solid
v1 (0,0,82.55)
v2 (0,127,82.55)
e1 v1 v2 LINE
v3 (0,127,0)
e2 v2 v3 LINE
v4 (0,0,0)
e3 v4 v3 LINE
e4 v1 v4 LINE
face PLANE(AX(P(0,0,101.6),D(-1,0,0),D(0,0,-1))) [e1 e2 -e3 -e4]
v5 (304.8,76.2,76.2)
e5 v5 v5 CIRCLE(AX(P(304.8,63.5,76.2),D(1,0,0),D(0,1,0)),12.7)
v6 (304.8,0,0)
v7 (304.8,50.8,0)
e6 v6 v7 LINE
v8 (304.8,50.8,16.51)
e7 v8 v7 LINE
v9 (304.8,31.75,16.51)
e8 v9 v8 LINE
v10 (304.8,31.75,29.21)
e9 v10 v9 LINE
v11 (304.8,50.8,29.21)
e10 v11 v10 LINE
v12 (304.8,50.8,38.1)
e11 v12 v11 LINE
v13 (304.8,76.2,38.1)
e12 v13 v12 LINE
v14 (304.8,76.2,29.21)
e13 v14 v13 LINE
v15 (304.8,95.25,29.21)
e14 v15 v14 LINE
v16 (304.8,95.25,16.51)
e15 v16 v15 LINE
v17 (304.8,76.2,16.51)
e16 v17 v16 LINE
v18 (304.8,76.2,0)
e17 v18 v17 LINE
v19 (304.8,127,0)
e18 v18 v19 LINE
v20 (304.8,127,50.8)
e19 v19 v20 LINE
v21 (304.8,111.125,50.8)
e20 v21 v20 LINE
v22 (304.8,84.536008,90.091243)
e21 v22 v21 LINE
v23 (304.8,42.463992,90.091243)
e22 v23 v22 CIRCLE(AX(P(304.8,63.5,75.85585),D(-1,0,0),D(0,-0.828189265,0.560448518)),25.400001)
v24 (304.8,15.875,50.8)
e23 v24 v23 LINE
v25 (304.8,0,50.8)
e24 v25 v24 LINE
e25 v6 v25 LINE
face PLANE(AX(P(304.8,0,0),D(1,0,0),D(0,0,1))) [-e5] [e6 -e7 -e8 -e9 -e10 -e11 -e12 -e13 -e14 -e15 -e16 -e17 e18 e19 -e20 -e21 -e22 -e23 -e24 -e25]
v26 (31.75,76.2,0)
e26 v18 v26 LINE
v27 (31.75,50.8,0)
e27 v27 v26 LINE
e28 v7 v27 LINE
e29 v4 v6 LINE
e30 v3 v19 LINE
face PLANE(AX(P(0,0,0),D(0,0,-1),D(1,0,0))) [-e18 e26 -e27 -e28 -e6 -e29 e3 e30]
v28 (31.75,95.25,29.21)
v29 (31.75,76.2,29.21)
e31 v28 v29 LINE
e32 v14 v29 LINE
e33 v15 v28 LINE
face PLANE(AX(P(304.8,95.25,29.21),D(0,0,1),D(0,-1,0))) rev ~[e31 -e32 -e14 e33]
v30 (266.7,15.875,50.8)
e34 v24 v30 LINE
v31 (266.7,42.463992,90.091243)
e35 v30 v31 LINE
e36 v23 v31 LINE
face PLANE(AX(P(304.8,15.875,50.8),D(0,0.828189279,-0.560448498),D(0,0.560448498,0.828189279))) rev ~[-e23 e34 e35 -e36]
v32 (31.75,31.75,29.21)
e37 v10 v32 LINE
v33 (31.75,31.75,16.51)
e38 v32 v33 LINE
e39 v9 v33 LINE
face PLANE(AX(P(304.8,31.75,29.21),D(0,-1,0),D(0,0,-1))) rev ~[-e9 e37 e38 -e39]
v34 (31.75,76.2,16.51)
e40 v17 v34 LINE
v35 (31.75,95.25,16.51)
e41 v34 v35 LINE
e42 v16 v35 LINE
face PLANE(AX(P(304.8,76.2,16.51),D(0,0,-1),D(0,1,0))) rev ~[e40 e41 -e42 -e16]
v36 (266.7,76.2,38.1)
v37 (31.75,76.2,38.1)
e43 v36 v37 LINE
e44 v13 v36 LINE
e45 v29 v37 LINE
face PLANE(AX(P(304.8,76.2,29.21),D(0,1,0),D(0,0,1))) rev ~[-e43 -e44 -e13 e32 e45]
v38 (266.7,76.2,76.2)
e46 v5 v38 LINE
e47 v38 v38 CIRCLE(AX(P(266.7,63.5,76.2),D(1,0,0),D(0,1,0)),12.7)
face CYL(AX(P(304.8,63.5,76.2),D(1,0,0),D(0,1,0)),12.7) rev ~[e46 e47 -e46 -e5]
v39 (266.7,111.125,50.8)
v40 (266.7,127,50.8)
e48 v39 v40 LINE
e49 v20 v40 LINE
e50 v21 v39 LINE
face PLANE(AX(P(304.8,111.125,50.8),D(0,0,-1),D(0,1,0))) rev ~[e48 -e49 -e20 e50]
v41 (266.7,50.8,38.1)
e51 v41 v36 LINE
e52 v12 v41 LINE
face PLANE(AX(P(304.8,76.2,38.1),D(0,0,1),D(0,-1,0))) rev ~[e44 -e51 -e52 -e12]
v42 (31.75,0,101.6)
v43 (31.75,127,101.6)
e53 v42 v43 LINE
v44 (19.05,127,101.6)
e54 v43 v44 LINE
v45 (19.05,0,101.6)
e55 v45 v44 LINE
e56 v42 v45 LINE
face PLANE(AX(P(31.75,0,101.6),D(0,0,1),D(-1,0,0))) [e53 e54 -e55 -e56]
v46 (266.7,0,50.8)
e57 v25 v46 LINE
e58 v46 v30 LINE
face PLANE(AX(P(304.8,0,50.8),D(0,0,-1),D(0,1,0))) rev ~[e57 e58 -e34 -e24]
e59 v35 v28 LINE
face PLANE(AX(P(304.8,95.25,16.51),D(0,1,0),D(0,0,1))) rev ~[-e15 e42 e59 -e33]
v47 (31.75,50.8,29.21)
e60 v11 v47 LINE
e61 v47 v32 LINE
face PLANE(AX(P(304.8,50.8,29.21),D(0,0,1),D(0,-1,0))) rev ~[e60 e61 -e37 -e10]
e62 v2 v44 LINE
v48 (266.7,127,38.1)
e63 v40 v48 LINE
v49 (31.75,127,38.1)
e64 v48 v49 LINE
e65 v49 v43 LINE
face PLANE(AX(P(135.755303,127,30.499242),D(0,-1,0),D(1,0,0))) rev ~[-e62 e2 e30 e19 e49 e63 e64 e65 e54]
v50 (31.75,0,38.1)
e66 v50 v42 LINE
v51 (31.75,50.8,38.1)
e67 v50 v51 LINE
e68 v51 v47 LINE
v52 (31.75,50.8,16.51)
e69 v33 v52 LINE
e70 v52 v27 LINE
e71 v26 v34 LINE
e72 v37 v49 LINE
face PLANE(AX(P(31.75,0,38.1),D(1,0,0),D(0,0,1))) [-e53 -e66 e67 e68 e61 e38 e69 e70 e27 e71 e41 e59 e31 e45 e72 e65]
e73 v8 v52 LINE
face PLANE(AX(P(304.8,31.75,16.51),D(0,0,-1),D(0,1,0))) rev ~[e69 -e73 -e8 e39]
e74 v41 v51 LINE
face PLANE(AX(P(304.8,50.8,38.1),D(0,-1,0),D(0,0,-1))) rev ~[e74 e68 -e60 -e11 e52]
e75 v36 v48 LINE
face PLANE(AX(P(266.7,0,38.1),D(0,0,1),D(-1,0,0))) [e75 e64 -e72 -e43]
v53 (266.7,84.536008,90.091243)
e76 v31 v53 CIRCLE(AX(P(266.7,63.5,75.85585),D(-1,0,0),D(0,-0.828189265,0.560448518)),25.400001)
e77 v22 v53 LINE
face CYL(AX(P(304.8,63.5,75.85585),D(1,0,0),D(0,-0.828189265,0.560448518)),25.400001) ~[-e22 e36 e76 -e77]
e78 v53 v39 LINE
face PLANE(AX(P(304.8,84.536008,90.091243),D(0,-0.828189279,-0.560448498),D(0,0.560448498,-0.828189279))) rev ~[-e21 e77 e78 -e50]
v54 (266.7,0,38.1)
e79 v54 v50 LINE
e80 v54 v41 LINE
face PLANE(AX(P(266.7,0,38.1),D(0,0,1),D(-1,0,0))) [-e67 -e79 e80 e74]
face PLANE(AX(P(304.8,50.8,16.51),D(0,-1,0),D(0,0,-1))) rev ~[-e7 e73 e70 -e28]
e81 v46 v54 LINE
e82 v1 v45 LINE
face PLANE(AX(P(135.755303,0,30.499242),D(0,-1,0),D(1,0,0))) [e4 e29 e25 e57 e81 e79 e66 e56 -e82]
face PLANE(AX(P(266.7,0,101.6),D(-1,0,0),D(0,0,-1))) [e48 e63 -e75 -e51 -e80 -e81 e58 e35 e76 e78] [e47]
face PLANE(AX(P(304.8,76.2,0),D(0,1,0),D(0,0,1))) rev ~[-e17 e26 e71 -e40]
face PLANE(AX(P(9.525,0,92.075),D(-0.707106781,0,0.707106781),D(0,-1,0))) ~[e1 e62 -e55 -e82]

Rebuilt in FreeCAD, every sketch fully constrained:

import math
import FreeCAD as App
import Part
import Sketcher
from FreeCAD import Vector
Q = App.Units.Quantity


def edges_at(feature, points):
    """Names of the edges that pass closest to the given points."""
    edges = feature.Shape.Edges
    near = lambda p: min(range(len(edges)), key=lambda i: edges[i].distToShape(Part.Vertex(*p))[0])
    return sorted({f"Edge{near(p) + 1}" for p in points})


def add_polygon(sketch, points):
    """Adds a closed chain of lines whose ends are joined by coincident constraints."""
    first, n = sketch.GeometryCount, len(points)
    for a, b in zip(points, points[1:] + points[:1]):
        sketch.addGeometry(Part.LineSegment(App.Vector(*a, 0), App.Vector(*b, 0)), False)
    for i in range(n):
        sketch.addConstraint(Sketcher.Constraint("Coincident", first + i, 2, first + (i + 1) % n, 1))

doc = App.newDocument("Part")
body = doc.addObject("PartDesign::Body", "Body")

# Sketch on XZ plane
sketch1 = doc.addObject("Sketcher::SketchObject", "Sketch")
body.addObject(sketch1)
sketch1.AttachmentSupport = (doc.XZ_Plane, [""])
sketch1.MapMode = "FlatFace"
add_polygon(sketch1, [(0, 102), (0, 0), (305, 0), (305, 102), (267, 102), (267, 38), (32, 38), (32, 102)])  # lines 0-7
sketch1.addConstraint(Sketcher.Constraint("Vertical", 0))
sketch1.addConstraint(Sketcher.Constraint("Horizontal", 1))
sketch1.addConstraint(Sketcher.Constraint("Vertical", 2))
sketch1.addConstraint(Sketcher.Constraint("Horizontal", 3))
sketch1.addConstraint(Sketcher.Constraint("Vertical", 4))
sketch1.addConstraint(Sketcher.Constraint("Horizontal", 5))
sketch1.addConstraint(Sketcher.Constraint("Vertical", 6))
sketch1.addConstraint(Sketcher.Constraint("Horizontal", 7))
sketch1.addConstraint(Sketcher.Constraint("Coincident", 0, 2, -1, 1))
sketch1.addConstraint(Sketcher.Constraint("Horizontal", 3, 2, 6, 2))
sketch1.addConstraint(Sketcher.Constraint("DistanceX", 1, 1, 1, 2, Q("12 in")))
sketch1.addConstraint(Sketcher.Constraint("DistanceY", 0, 2, 0, 1, Q("4 in")))
sketch1.addConstraint(Sketcher.Constraint("DistanceX", 3, 2, 3, 1, Q("1.5 in")))
sketch1.addConstraint(Sketcher.Constraint("DistanceY", 4, 2, 4, 1, Q("2.5 in")))
sketch1.addConstraint(Sketcher.Constraint("DistanceX", 5, 2, 5, 1, Q("9.25 in")))
pad1 = doc.addObject("PartDesign::Pad", "Pad")
body.addObject(pad1)
pad1.Profile = sketch1
pad1.Length = Q("5 in")
pad1.Reversed = True
doc.recompute()

chamfer = doc.addObject("PartDesign::Chamfer", "Chamfer")
body.addObject(chamfer)
chamfer.Base = (pad1, edges_at(pad1, [(0, 63.5, 101.6)]))
chamfer.ChamferType = "Two distances"
chamfer.Size = Q("0.75 in")
chamfer.Size2 = Q("0.75 in")

# Sketch on YZ plane
sketch2 = doc.addObject("Sketcher::SketchObject", "Sketch001")
body.addObject(sketch2)
sketch2.AttachmentSupport = (doc.YZ_Plane, [""])
sketch2.MapMode = "FlatFace"
sketch2.AttachmentOffset = App.Placement(Vector(0, 0, 12 * 25.4), App.Rotation())
add_polygon(sketch2, [(51, 17), (51, 0), (76, 0), (76, 17), (95, 17), (95, 29), (76, 29), (76, 38), (51, 38), (51, 29), (32, 29), (32, 17)])  # lines 0-11
sketch2.addConstraint(Sketcher.Constraint("Vertical", 0))
sketch2.addConstraint(Sketcher.Constraint("Horizontal", 1))
sketch2.addConstraint(Sketcher.Constraint("Vertical", 2))
sketch2.addConstraint(Sketcher.Constraint("Horizontal", 3))
sketch2.addConstraint(Sketcher.Constraint("Vertical", 4))
sketch2.addConstraint(Sketcher.Constraint("Horizontal", 5))
sketch2.addConstraint(Sketcher.Constraint("Vertical", 6))
sketch2.addConstraint(Sketcher.Constraint("Horizontal", 7))
sketch2.addConstraint(Sketcher.Constraint("Vertical", 8))
sketch2.addConstraint(Sketcher.Constraint("Horizontal", 9))
sketch2.addConstraint(Sketcher.Constraint("Vertical", 10))
sketch2.addConstraint(Sketcher.Constraint("Horizontal", 11))
sketch2.addConstraint(Sketcher.Constraint("PointOnObject", 0, 2, -1))
sketch2.addConstraint(Sketcher.Constraint("Horizontal", 5, 2, 8, 2))
sketch2.addConstraint(Sketcher.Constraint("Horizontal", 3, 2, 10, 2))
sketch2.addConstraint(Sketcher.Constraint("Vertical", 2, 2, 5, 2))
sketch2.addConstraint(Sketcher.Constraint("Vertical", 0, 2, 7, 2))
sketch2.addConstraint(Sketcher.Constraint("Equal", 5, 9))
sketch2.addConstraint(Sketcher.Constraint("DistanceX", 1, 1, 1, 2, Q("1 in")))
sketch2.addConstraint(Sketcher.Constraint("DistanceY", 4, 1, 4, 2, Q("0.5 in")))
sketch2.addConstraint(Sketcher.Constraint("DistanceX", -1, 1, 0, 2, Q("2 in")))
sketch2.addConstraint(Sketcher.Constraint("DistanceX", 3, 1, 3, 2, Q("0.75 in")))
sketch2.addConstraint(Sketcher.Constraint("DistanceY", 0, 2, 0, 1, Q("0.65 in")))
sketch2.addConstraint(Sketcher.Constraint("DistanceY", 6, 1, 6, 2, Q("0.35 in")))
pocket1 = doc.addObject("PartDesign::Pocket", "Pocket")
body.addObject(pocket1)
pocket1.Profile = sketch2
pocket1.Length = Q("10.75 in")

# Sketch on YZ plane
sketch3 = doc.addObject("Sketcher::SketchObject", "Sketch002")
body.addObject(sketch3)
sketch3.AttachmentSupport = (doc.YZ_Plane, [""])
sketch3.MapMode = "FlatFace"
sketch3.AttachmentOffset = App.Placement(Vector(0, 0, 12 * 25.4), App.Rotation())
sketch3.addGeometry(Part.Circle(Vector(64, 76, 0), Vector(0, 0, 1), 13), False)
sketch3.addConstraint(Sketcher.Constraint("Diameter", 0, Q("1 in")))
sketch3.addConstraint(Sketcher.Constraint("DistanceY", -1, 1, 0, 3, Q("3 in")))
sketch3.addConstraint(Sketcher.Constraint("DistanceX", -1, 1, 0, 3, Q("2.5 in")))
pocket2 = doc.addObject("PartDesign::Pocket", "Pocket001")
body.addObject(pocket2)
pocket2.Profile = sketch3
pocket2.Length = Q("1.5 in")

# Sketch on YZ plane
sketch4 = doc.addObject("Sketcher::SketchObject", "Sketch003")
body.addObject(sketch4)
sketch4.AttachmentSupport = (doc.YZ_Plane, [""])
sketch4.MapMode = "FlatFace"
sketch4.AttachmentOffset = App.Placement(Vector(0, 0, 12 * 25.4), App.Rotation())
sketch4.addGeometry(Part.LineSegment(Vector(0, 102, 0), Vector(0, 51, 0)), False)
sketch4.addGeometry(Part.LineSegment(Vector(0, 51, 0), Vector(16, 51, 0)), False)
sketch4.addGeometry(Part.LineSegment(Vector(16, 51, 0), Vector(42, 90, 0)), False)
sketch4.addGeometry(Part.ArcOfCircle(Part.Circle(Vector(64, 76, 0), Vector(0, 0, 1), 25), math.radians(34), math.radians(146)), False)
sketch4.addGeometry(Part.LineSegment(Vector(85, 90, 0), Vector(111, 51, 0)), False)
sketch4.addGeometry(Part.LineSegment(Vector(111, 51, 0), Vector(127, 51, 0)), False)
sketch4.addGeometry(Part.LineSegment(Vector(127, 51, 0), Vector(127, 102, 0)), False)
sketch4.addGeometry(Part.LineSegment(Vector(127, 102, 0), Vector(0, 102, 0)), False)
sketch4.addConstraint(Sketcher.Constraint("Coincident", 0, 2, 1, 1))
sketch4.addConstraint(Sketcher.Constraint("Coincident", 1, 2, 2, 1))
sketch4.addConstraint(Sketcher.Constraint("Tangent", 2, 2, 3, 2))
sketch4.addConstraint(Sketcher.Constraint("Tangent", 3, 1, 4, 1))
sketch4.addConstraint(Sketcher.Constraint("Coincident", 4, 2, 5, 1))
sketch4.addConstraint(Sketcher.Constraint("Coincident", 5, 2, 6, 1))
sketch4.addConstraint(Sketcher.Constraint("Coincident", 6, 2, 7, 1))
sketch4.addConstraint(Sketcher.Constraint("Coincident", 7, 2, 0, 1))
sketch4.addConstraint(Sketcher.Constraint("Vertical", 0))
sketch4.addConstraint(Sketcher.Constraint("Horizontal", 1))
sketch4.addConstraint(Sketcher.Constraint("Horizontal", 5))
sketch4.addConstraint(Sketcher.Constraint("Vertical", 6))
sketch4.addConstraint(Sketcher.Constraint("Horizontal", 7))
sketch4.addConstraint(Sketcher.Constraint("PointOnObject", 0, 2, -2))
sketch4.addConstraint(Sketcher.Constraint("Horizontal", 2, 2, 3, 1))
sketch4.addConstraint(Sketcher.Constraint("Horizontal", 1, 2, 4, 2))
sketch4.addConstraint(Sketcher.Constraint("Equal", 1, 5))
sketch4.addConstraint(Sketcher.Constraint("Radius", 3, Q("1 in")))
sketch4.addConstraint(Sketcher.Constraint("DistanceX", 7, 2, 7, 1, Q("5 in")))
sketch4.addConstraint(Sketcher.Constraint("DistanceY", 0, 2, 0, 1, Q("2 in")))
sketch4.addConstraint(Sketcher.Constraint("DistanceY", -1, 1, 0, 2, Q("2 in")))
sketch4.addConstraint(Sketcher.Constraint("DistanceX", 1, 1, 1, 2, Q("0.625 in")))
sketch4.addConstraint(Sketcher.Constraint("DistanceY", -1, 1, 3, 3, Q("75.85585 mm")))
pocket3 = doc.addObject("PartDesign::Pocket", "Pocket002")
body.addObject(pocket3)
pocket3.Profile = sketch4
pocket3.Length = Q("1.5 in")

doc.recompute()
